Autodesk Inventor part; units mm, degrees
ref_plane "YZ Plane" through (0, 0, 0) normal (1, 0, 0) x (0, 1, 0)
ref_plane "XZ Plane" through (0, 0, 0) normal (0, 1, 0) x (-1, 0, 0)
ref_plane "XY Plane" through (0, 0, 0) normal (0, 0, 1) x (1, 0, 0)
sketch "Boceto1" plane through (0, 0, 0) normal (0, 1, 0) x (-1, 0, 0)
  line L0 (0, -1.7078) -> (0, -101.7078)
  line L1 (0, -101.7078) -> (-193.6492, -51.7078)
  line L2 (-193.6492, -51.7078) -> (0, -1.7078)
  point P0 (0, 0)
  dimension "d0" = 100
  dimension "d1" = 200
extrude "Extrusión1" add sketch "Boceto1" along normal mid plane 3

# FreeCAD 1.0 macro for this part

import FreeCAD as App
import Part
import Sketcher

V = App.Vector
Q = App.Units.Quantity


def add_polygon(sketch, points):
    """Adds a closed chain of lines whose ends are joined by coincident constraints."""
    first, n = sketch.GeometryCount, len(points)
    for a, b in zip(points, points[1:] + points[:1]):
        sketch.addGeometry(Part.LineSegment(App.Vector(*a, 0), App.Vector(*b, 0)), False)
    for i in range(n):
        sketch.addConstraint(Sketcher.Constraint("Coincident", first + i, 2, first + (i + 1) % n, 1))

doc = App.newDocument("Part")
body = doc.addObject("PartDesign::Body", "Body")

# Sketch on XZ plane
sketch1 = body.newObject("Sketcher::SketchObject", "Sketch")
sketch1.AttachmentSupport = (doc.getObject("XZ_Plane"), [""])
sketch1.MapMode = "FlatFace"
add_polygon(sketch1, [(0, -102), (0, -2), (194, -52)])  # lines 0-2
sketch1.addConstraint([
    Sketcher.Constraint("Vertical", 0),
    Sketcher.Constraint("PointOnObject", 0, 2, -2),
    Sketcher.Constraint("Equal", 1, 2),
    Sketcher.Constraint("DistanceY", 0, 1, 0, 2, Q("100 mm")),
    Sketcher.Constraint("Distance", 1, Q("200 mm")),
    Sketcher.Constraint("DistanceY", 0, 2, -1, 1, Q("1.7078 mm")),
])
pad1 = body.newObject("PartDesign::Pad", "Pad")
pad1.Profile = sketch1
pad1.Length = 3
pad1.Midplane = True

doc.recompute()
